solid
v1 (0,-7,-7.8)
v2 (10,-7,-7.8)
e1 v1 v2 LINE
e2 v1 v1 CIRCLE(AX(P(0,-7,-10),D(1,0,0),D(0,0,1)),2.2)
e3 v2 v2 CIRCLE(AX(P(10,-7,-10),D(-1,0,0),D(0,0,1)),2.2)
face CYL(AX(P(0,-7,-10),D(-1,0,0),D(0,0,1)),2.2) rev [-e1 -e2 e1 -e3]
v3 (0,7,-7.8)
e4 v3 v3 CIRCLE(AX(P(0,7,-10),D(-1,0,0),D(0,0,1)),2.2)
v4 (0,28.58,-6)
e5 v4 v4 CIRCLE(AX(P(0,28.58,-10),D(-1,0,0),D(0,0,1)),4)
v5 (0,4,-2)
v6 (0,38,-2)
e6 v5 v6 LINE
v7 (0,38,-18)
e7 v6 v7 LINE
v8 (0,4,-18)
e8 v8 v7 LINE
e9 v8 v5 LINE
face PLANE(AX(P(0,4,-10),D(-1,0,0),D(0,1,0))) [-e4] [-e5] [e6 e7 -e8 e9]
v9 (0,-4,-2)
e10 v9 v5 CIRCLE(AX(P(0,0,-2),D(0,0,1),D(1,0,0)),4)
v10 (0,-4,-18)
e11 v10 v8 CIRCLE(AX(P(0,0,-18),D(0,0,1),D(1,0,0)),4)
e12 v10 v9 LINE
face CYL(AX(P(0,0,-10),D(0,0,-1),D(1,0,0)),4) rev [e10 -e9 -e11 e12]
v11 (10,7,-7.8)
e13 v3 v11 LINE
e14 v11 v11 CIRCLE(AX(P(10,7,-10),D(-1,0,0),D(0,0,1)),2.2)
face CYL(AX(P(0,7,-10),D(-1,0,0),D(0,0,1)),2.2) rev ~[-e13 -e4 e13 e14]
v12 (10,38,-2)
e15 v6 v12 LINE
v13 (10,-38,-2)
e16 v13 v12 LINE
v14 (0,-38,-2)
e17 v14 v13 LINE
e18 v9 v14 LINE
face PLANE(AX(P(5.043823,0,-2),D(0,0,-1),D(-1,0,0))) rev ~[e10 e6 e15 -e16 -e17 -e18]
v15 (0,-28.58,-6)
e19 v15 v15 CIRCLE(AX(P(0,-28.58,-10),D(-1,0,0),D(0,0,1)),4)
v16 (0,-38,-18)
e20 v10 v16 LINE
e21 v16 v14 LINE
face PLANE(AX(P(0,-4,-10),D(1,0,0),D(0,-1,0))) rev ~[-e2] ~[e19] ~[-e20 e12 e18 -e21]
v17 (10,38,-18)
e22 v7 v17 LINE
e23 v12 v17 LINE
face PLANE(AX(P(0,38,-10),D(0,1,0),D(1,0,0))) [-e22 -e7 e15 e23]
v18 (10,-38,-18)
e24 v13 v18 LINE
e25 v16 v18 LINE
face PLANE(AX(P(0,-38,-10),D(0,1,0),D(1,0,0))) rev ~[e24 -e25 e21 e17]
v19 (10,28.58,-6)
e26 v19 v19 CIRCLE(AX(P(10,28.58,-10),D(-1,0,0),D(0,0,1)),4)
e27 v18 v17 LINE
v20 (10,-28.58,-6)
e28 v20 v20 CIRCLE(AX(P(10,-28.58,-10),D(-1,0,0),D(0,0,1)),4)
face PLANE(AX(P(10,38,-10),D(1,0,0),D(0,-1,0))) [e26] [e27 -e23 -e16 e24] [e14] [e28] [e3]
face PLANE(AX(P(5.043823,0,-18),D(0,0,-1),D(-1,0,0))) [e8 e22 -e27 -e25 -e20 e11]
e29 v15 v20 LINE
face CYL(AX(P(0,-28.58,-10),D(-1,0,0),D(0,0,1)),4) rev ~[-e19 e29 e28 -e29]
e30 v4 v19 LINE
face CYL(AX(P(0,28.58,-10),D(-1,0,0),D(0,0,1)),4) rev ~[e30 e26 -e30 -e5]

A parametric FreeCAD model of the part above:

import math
import FreeCAD as App
import Part
import Sketcher

doc = App.newDocument("Part")
params = doc.addObject("Spreadsheet::Sheet", "Params")
for row, (alias, value) in enumerate([
    ("sketch1_radius", "4 mm"),
    ("sketch1_width", "10 mm"),
    ("sketch1_height", "34 mm"),
    ("pad1_length", "16 mm"),
    ("sketch2_diameter", "8 mm"),
    ("sketch3_diameter", "4.4 mm"),
], start=1):
    params.set(f"A{row}", alias)
    params.set(f"B{row}", "=" + value)
    params.setAlias(f"B{row}", alias)

body = doc.addObject("PartDesign::Body", "Body")

# Sketch on XY plane
sketch1 = doc.addObject("Sketcher::SketchObject", "Sketch")
body.addObject(sketch1)
sketch1.AttachmentSupport = (doc.XY_Plane, [""])
sketch1.MapMode = "FlatFace"
sketch1.AttachmentOffset = App.Placement(App.Vector(0, 0, -10), App.Rotation())
sketch1.addGeometry([
    Part.LineSegment(App.Vector(0, 38, 0), App.Vector(0, 4, 0)),  # 0
    Part.ArcOfCircle(Part.Circle(App.Vector(0, 0, 0), App.Vector(0, 0, 1), 4), math.radians(-90), math.radians(90)),  # 1
    Part.LineSegment(App.Vector(0, -4, 0), App.Vector(0, -38, 0)),  # 2
    Part.LineSegment(App.Vector(0, -38, 0), App.Vector(10, -38, 0)),  # 3
    Part.LineSegment(App.Vector(10, -38, 0), App.Vector(10, 38, 0)),  # 4
    Part.LineSegment(App.Vector(10, 38, 0), App.Vector(0, 38, 0)),  # 5
], False)
sketch1.addConstraint([
    Sketcher.Constraint("Coincident", 0, 2, 1, 2),
    Sketcher.Constraint("Coincident", 1, 1, 2, 1),
    Sketcher.Constraint("Coincident", 2, 2, 3, 1),
    Sketcher.Constraint("Coincident", 3, 2, 4, 1),
    Sketcher.Constraint("Coincident", 4, 2, 5, 1),
    Sketcher.Constraint("Coincident", 5, 2, 0, 1),
    Sketcher.Constraint("Vertical", 0),
    Sketcher.Constraint("Vertical", 2),
    Sketcher.Constraint("Horizontal", 3),
    Sketcher.Constraint("Vertical", 4),
    Sketcher.Constraint("Horizontal", 5),
    Sketcher.Constraint("Coincident", 1, 3, -1, 1),
    Sketcher.Constraint("Symmetric", 2, 2, 5, 2, -1, 1),
    Sketcher.Constraint("PointOnObject", 0, 2, -2),
    Sketcher.Constraint("Radius", 1, 4.0),
    Sketcher.Constraint("DistanceX", 3, 1, 3, 2, 10.0),
    Sketcher.Constraint("DistanceY", 0, 2, 0, 1, 34.0),
])
sketch1.setExpression("Constraints[14]", "Params.sketch1_radius")
sketch1.setExpression("Constraints[15]", "Params.sketch1_width")
sketch1.setExpression("Constraints[16]", "Params.sketch1_height")
pad1 = doc.addObject("PartDesign::Pad", "Pad")
body.addObject(pad1)
pad1.Profile = sketch1
pad1.setExpression("Length", "Params.pad1_length")
pad1.Midplane = True

# Sketch on YZ plane
sketch2 = doc.addObject("Sketcher::SketchObject", "Sketch001")
body.addObject(sketch2)
sketch2.AttachmentSupport = (doc.YZ_Plane, [""])
sketch2.MapMode = "FlatFace"
sketch2.addGeometry([
    Part.Circle(App.Vector(28.58, -10, 0), App.Vector(0, 0, 1), 4),
    Part.Circle(App.Vector(-28.58, -10, 0), App.Vector(0, 0, 1), 4),
], False)
sketch2.addConstraint([
    Sketcher.Constraint("Equal", 0, 1),
    Sketcher.Constraint("Symmetric", 0, 3, 1, 3, -2),
    Sketcher.Constraint("Diameter", 0, 8.0),
    Sketcher.Constraint("DistanceY", 0, 3, -1, 1, 10.0),
    Sketcher.Constraint("DistanceX", -1, 1, 0, 3, 28.58),
])
sketch2.setExpression("Constraints[2]", "Params.sketch2_diameter")
pocket1 = doc.addObject("PartDesign::Pocket", "Pocket")
body.addObject(pocket1)
pocket1.Profile = sketch2
pocket1.Type = "ThroughAll"
pocket1.Reversed = True

# Sketch on YZ plane
sketch3 = doc.addObject("Sketcher::SketchObject", "Sketch002")
body.addObject(sketch3)
sketch3.AttachmentSupport = (doc.YZ_Plane, [""])
sketch3.MapMode = "FlatFace"
sketch3.addGeometry(Part.Circle(App.Vector(7, -10, 0), App.Vector(0, 0, 1), 2.2), False)
sketch3.addConstraint([
    Sketcher.Constraint("Diameter", 0, 4.4),
    Sketcher.Constraint("DistanceX", -1, 1, 0, 3, 7.0),
    Sketcher.Constraint("DistanceY", 0, 3, -1, 1, 10.0),
])
sketch3.setExpression("Constraints[0]", "Params.sketch3_diameter")
pocket2 = doc.addObject("PartDesign::Pocket", "Pocket001")
body.addObject(pocket2)
pocket2.Profile = sketch3
pocket2.Type = "ThroughAll"
pocket2.Reversed = True
doc.recompute()

mirrored = doc.addObject("PartDesign::Mirrored", "Mirrored")
body.addObject(mirrored)
mirrored.Originals = [pocket2]
mirrored.MirrorPlane = (doc.XZ_Plane, [""])
body.Tip = mirrored

doc.recompute()
